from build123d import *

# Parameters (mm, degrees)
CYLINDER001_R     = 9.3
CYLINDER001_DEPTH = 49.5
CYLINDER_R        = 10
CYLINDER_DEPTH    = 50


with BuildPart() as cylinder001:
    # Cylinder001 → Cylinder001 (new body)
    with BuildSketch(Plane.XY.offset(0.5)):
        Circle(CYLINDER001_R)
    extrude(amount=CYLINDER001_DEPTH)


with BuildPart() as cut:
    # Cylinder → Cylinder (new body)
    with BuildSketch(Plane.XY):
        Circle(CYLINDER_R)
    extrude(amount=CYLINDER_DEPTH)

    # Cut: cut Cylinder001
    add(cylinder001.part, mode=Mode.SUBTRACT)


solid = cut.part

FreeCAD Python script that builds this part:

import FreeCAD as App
import Part
import Sketcher
Q = App.Units.Quantity

doc = App.newDocument("Part")
body = doc.addObject("PartDesign::Body", "Body")

sketch1 = body.newObject("Sketcher::SketchObject", "Sketch")
sketch1.AttachmentSupport = (doc.getObject("XY_Plane"), [""])
sketch1.MapMode = "FlatFace"
sketch1.AttachmentOffset = App.Placement(App.Vector(0, 0, 0.5), App.Rotation())
sketch1.addGeometry(Part.Circle(App.Vector(0, 0, 0), App.Vector(0, 0, 1), 9), False)
sketch1.addConstraint([
    Sketcher.Constraint("Coincident", 0, 3, -1, 1),
    Sketcher.Constraint("Diameter", 0, Q("18.6 mm")),
])
pad1 = body.newObject("PartDesign::Pad", "Pad")
pad1.Profile = sketch1
pad1.Length = 49.5
body2 = doc.addObject("PartDesign::Body", "Body001")

sketch2 = body2.newObject("Sketcher::SketchObject", "Sketch001")
sketch2.AttachmentSupport = (doc.getObject("XY_Plane001"), [""])
sketch2.MapMode = "FlatFace"
sketch2.addGeometry(Part.Circle(App.Vector(0, 0, 0), App.Vector(0, 0, 1), 10), False)
sketch2.addConstraint([
    Sketcher.Constraint("Coincident", 0, 3, -1, 1),
    Sketcher.Constraint("Diameter", 0, Q("20 mm")),
])
pad2 = body2.newObject("PartDesign::Pad", "Pad001")
pad2.Profile = sketch2
pad2.Length = 50
doc.recompute()

boolean = body2.newObject("PartDesign::Boolean", "Boolean")
boolean.Type = "Cut"
boolean.addObjects([body])

doc.recompute()
